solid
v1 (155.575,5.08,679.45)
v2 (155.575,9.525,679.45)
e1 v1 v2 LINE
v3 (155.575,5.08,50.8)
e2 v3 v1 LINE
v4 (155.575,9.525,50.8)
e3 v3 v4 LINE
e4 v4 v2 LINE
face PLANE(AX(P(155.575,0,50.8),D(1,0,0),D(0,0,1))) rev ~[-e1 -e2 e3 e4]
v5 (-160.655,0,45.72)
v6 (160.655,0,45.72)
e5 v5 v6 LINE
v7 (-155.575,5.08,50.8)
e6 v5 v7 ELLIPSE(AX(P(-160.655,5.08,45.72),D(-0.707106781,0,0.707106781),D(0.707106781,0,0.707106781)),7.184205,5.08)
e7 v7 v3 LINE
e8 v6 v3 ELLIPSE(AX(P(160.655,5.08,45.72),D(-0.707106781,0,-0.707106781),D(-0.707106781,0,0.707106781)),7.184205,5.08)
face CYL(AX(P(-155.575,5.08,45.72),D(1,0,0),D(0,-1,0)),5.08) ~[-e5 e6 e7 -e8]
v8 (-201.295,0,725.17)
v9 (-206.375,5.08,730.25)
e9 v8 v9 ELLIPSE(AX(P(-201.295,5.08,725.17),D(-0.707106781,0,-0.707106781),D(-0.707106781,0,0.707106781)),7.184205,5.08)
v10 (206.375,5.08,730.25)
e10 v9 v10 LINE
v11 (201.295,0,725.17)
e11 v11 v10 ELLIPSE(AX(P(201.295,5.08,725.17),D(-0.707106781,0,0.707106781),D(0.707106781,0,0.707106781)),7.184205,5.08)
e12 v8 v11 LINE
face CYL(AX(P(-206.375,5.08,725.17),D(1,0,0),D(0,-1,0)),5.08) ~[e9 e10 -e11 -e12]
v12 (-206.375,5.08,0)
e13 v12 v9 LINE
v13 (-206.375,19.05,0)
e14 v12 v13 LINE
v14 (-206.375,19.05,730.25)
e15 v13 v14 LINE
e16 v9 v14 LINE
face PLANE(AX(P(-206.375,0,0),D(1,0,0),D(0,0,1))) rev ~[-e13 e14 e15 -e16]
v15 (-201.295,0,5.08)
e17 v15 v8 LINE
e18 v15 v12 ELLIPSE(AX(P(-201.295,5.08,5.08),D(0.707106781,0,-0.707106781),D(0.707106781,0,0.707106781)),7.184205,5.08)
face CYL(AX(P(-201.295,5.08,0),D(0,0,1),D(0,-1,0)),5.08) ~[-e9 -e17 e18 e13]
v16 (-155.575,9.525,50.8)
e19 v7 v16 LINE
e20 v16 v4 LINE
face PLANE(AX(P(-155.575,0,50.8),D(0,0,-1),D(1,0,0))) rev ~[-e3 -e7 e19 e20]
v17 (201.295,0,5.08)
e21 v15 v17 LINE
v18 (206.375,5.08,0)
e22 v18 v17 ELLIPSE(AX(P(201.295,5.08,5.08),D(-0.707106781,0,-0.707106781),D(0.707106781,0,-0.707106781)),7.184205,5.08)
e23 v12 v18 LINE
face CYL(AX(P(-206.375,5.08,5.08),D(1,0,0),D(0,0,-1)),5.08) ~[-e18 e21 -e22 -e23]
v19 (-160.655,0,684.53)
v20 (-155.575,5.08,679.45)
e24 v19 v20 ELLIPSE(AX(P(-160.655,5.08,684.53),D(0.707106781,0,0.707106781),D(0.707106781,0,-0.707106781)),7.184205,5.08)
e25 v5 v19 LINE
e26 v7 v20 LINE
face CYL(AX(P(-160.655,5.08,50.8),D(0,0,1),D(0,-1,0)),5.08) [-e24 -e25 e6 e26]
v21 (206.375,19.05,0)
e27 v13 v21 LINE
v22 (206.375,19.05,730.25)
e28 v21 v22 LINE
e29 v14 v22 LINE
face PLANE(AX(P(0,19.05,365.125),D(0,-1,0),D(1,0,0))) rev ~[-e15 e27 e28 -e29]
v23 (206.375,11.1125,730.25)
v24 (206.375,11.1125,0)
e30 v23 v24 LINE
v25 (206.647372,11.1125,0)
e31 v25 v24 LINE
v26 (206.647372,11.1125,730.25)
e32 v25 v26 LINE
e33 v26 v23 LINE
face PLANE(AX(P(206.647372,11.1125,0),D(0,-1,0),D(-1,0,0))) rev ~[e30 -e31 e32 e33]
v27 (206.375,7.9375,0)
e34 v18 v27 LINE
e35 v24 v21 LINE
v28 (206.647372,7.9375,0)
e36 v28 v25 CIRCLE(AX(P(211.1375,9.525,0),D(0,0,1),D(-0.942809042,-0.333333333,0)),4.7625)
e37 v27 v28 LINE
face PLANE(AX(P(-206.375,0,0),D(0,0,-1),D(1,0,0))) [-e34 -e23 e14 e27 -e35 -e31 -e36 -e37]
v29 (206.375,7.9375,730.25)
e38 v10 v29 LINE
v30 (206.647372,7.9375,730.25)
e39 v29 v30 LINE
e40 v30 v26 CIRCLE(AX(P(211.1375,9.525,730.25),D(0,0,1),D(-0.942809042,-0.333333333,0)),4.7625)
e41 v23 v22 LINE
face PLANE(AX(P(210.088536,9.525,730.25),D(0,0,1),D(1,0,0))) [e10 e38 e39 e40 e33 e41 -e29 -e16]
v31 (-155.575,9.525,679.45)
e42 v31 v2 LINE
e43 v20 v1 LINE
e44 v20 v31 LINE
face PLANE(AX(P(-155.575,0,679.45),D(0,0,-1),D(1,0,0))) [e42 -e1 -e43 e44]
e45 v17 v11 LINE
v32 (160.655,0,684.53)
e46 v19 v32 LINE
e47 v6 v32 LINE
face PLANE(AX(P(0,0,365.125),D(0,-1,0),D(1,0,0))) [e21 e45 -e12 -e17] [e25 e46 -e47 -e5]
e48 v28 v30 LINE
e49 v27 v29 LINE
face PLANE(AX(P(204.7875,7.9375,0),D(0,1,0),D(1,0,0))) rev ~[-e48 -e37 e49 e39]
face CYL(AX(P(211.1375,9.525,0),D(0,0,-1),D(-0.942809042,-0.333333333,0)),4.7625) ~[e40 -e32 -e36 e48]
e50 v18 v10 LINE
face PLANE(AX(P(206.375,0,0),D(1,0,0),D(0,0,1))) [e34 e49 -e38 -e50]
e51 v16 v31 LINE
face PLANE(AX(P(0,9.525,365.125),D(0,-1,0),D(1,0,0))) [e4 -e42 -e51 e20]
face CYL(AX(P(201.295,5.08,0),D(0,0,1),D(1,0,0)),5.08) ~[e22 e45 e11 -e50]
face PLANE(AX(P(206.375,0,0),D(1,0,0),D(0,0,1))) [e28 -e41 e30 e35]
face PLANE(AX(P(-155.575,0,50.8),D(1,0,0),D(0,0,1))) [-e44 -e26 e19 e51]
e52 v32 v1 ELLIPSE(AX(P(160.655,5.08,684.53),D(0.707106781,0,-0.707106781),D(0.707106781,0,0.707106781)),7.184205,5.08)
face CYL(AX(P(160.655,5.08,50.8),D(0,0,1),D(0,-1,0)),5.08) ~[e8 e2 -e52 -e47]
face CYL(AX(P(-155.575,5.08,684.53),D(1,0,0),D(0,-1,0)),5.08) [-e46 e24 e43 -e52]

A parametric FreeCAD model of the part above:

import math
import FreeCAD as App
import Part
import Sketcher
from FreeCAD import Vector
Q = App.Units.Quantity


def edges_at(feature, points):
    """Names of the edges that pass closest to the given points."""
    edges = feature.Shape.Edges
    near = lambda p: min(range(len(edges)), key=lambda i: edges[i].distToShape(Part.Vertex(*p))[0])
    return sorted({f"Edge{near(p) + 1}" for p in points})

doc = App.newDocument("Part")
params = doc.addObject("Spreadsheet::Sheet", "Params")
for row, (alias, value) in enumerate([
    ("sketch1_width", "16.25 in"),
    ("sketch1_height", "28.75 in"),
    ("pad1_length", "0.75 in"),
    ("sketch2_radius", "0.1875 in"),
    ("sketch2_height", "0.125 in"),
    ("pad2_length", "28.75 in"),
    ("sketch3_width", "12.25 in"),
    ("sketch3_height", "24.75 in"),
    ("pocket1_length", "0.375 in"),
    ("fillet_radius", "0.2 in"),
], start=1):
    params.set(f"A{row}", alias)
    params.set(f"B{row}", "=" + value)
    params.setAlias(f"B{row}", alias)

body = doc.addObject("PartDesign::Body", "Body")

sketch1 = body.newObject("Sketcher::SketchObject", "Sketch")
sketch1.AttachmentSupport = (doc.getObject("XZ_Plane"), [""])
sketch1.MapMode = "FlatFace"
sketch1.addGeometry(Part.LineSegment(Vector(-206, 730, 0), Vector(-206, 0, 0)), False)
sketch1.addGeometry(Part.LineSegment(Vector(-206, 0, 0), Vector(206, 0, 0)), False)
sketch1.addGeometry(Part.LineSegment(Vector(206, 0, 0), Vector(206, 730, 0)), False)
sketch1.addGeometry(Part.LineSegment(Vector(206, 730, 0), Vector(-206, 730, 0)), False)
sketch1.addConstraint(Sketcher.Constraint("Coincident", 0, 2, 1, 1))
sketch1.addConstraint(Sketcher.Constraint("Coincident", 1, 2, 2, 1))
sketch1.addConstraint(Sketcher.Constraint("Coincident", 2, 2, 3, 1))
sketch1.addConstraint(Sketcher.Constraint("Coincident", 3, 2, 0, 1))
sketch1.addConstraint(Sketcher.Constraint("Vertical", 0))
sketch1.addConstraint(Sketcher.Constraint("Horizontal", 1))
sketch1.addConstraint(Sketcher.Constraint("Vertical", 2))
sketch1.addConstraint(Sketcher.Constraint("Horizontal", 3))
sketch1.addConstraint(Sketcher.Constraint("Symmetric", 0, 2, 1, 2, -1, 1))
sketch1.addConstraint(Sketcher.Constraint("DistanceX", 1, 1, 1, 2, Q("16.25 in")))
sketch1.addConstraint(Sketcher.Constraint("DistanceY", 0, 2, 0, 1, Q("28.75 in")))
sketch1.setExpression("Constraints[9]", "Params.sketch1_width")
sketch1.setExpression("Constraints[10]", "Params.sketch1_height")
pad1 = body.newObject("PartDesign::Pad", "Pad")
pad1.Profile = sketch1
pad1.setExpression("Length", "Params.pad1_length")
pad1.Reversed = True

sketch2 = body.newObject("Sketcher::SketchObject", "Sketch001")
sketch2.AttachmentSupport = (doc.getObject("XY_Plane"), [""])
sketch2.MapMode = "FlatFace"
sketch2.addGeometry(Part.LineSegment(Vector(204.8, 7.9, 0), Vector(206.6, 7.9, 0)), False)
sketch2.addGeometry(Part.ArcOfCircle(Part.Circle(Vector(211.1, 9.5, 0), Vector(0, 0, 1), 4.8), math.radians(-161), math.radians(161)), False)
sketch2.addGeometry(Part.LineSegment(Vector(206.6, 11.1, 0), Vector(204.8, 11.1, 0)), False)
sketch2.addGeometry(Part.LineSegment(Vector(204.8, 11.1, 0), Vector(204.8, 7.9, 0)), False)
sketch2.addConstraint(Sketcher.Constraint("Coincident", 0, 2, 1, 1))
sketch2.addConstraint(Sketcher.Constraint("Coincident", 1, 2, 2, 1))
sketch2.addConstraint(Sketcher.Constraint("Coincident", 2, 2, 3, 1))
sketch2.addConstraint(Sketcher.Constraint("Coincident", 3, 2, 0, 1))
sketch2.addConstraint(Sketcher.Constraint("Horizontal", 0))
sketch2.addConstraint(Sketcher.Constraint("Horizontal", 2))
sketch2.addConstraint(Sketcher.Constraint("Vertical", 3))
sketch2.addConstraint(Sketcher.Constraint("Vertical", 0, 2, 1, 2))
sketch2.addConstraint(Sketcher.Constraint("Radius", 1, Q("0.1875 in")))
sketch2.addConstraint(Sketcher.Constraint("DistanceY", 3, 2, 3, 1, Q("0.125 in")))
sketch2.addConstraint(Sketcher.Constraint("DistanceX", 2, 2, 1, 3, Q("0.25 in")))
sketch2.addConstraint(Sketcher.Constraint("DistanceX", -1, 1, 1, 3, Q("8.3125 in")))
sketch2.addConstraint(Sketcher.Constraint("DistanceY", -1, 1, 1, 3, Q("0.375 in")))
sketch2.setExpression("Constraints[8]", "Params.sketch2_radius")
sketch2.setExpression("Constraints[9]", "Params.sketch2_height")
pad2 = body.newObject("PartDesign::Pad", "Pad001")
pad2.Profile = sketch2
pad2.setExpression("Length", "Params.pad2_length")

sketch3 = body.newObject("Sketcher::SketchObject", "Sketch002")
sketch3.AttachmentSupport = (doc.getObject("XZ_Plane"), [""])
sketch3.MapMode = "FlatFace"
sketch3.addGeometry(Part.LineSegment(Vector(-156, 679, 0), Vector(-156, 51, 0)), False)
sketch3.addGeometry(Part.LineSegment(Vector(-156, 51, 0), Vector(156, 51, 0)), False)
sketch3.addGeometry(Part.LineSegment(Vector(156, 51, 0), Vector(156, 679, 0)), False)
sketch3.addGeometry(Part.LineSegment(Vector(156, 679, 0), Vector(-156, 679, 0)), False)
sketch3.addConstraint(Sketcher.Constraint("Coincident", 0, 2, 1, 1))
sketch3.addConstraint(Sketcher.Constraint("Coincident", 1, 2, 2, 1))
sketch3.addConstraint(Sketcher.Constraint("Coincident", 2, 2, 3, 1))
sketch3.addConstraint(Sketcher.Constraint("Coincident", 3, 2, 0, 1))
sketch3.addConstraint(Sketcher.Constraint("Vertical", 0))
sketch3.addConstraint(Sketcher.Constraint("Horizontal", 1))
sketch3.addConstraint(Sketcher.Constraint("Vertical", 2))
sketch3.addConstraint(Sketcher.Constraint("Horizontal", 3))
sketch3.addConstraint(Sketcher.Constraint("DistanceY", -1, 1, 0, 2, Q("2 in")))
sketch3.addConstraint(Sketcher.Constraint("DistanceX", 1, 1, 1, 2, Q("12.25 in")))
sketch3.addConstraint(Sketcher.Constraint("DistanceY", 0, 2, 0, 1, Q("24.75 in")))
sketch3.addConstraint(Sketcher.Constraint("DistanceX", 0, 2, -1, 1, Q("6.125 in")))
sketch3.setExpression("Constraints[9]", "Params.sketch3_width")
sketch3.setExpression("Constraints[10]", "Params.sketch3_height")
pocket1 = body.newObject("PartDesign::Pocket", "Pocket")
pocket1.Profile = sketch3
pocket1.setExpression("Length", "Params.pocket1_length")
doc.recompute()

fillet = body.newObject("PartDesign::Fillet", "Fillet")
fillet.Base = (pocket1, edges_at(pocket1, [
    (-206.375, 0, 365.125),
    (0, 0, 730.25),
    (0, 0, 0),
    (206.375, 0, 365.125),
    (155.575, 0, 365.125),
    (0, 0, 679.45),
    (-155.575, 0, 365.125),
    (0, 0, 50.8),
]))
fillet.setExpression("Radius", "Params.fillet_radius")

doc.recompute()
